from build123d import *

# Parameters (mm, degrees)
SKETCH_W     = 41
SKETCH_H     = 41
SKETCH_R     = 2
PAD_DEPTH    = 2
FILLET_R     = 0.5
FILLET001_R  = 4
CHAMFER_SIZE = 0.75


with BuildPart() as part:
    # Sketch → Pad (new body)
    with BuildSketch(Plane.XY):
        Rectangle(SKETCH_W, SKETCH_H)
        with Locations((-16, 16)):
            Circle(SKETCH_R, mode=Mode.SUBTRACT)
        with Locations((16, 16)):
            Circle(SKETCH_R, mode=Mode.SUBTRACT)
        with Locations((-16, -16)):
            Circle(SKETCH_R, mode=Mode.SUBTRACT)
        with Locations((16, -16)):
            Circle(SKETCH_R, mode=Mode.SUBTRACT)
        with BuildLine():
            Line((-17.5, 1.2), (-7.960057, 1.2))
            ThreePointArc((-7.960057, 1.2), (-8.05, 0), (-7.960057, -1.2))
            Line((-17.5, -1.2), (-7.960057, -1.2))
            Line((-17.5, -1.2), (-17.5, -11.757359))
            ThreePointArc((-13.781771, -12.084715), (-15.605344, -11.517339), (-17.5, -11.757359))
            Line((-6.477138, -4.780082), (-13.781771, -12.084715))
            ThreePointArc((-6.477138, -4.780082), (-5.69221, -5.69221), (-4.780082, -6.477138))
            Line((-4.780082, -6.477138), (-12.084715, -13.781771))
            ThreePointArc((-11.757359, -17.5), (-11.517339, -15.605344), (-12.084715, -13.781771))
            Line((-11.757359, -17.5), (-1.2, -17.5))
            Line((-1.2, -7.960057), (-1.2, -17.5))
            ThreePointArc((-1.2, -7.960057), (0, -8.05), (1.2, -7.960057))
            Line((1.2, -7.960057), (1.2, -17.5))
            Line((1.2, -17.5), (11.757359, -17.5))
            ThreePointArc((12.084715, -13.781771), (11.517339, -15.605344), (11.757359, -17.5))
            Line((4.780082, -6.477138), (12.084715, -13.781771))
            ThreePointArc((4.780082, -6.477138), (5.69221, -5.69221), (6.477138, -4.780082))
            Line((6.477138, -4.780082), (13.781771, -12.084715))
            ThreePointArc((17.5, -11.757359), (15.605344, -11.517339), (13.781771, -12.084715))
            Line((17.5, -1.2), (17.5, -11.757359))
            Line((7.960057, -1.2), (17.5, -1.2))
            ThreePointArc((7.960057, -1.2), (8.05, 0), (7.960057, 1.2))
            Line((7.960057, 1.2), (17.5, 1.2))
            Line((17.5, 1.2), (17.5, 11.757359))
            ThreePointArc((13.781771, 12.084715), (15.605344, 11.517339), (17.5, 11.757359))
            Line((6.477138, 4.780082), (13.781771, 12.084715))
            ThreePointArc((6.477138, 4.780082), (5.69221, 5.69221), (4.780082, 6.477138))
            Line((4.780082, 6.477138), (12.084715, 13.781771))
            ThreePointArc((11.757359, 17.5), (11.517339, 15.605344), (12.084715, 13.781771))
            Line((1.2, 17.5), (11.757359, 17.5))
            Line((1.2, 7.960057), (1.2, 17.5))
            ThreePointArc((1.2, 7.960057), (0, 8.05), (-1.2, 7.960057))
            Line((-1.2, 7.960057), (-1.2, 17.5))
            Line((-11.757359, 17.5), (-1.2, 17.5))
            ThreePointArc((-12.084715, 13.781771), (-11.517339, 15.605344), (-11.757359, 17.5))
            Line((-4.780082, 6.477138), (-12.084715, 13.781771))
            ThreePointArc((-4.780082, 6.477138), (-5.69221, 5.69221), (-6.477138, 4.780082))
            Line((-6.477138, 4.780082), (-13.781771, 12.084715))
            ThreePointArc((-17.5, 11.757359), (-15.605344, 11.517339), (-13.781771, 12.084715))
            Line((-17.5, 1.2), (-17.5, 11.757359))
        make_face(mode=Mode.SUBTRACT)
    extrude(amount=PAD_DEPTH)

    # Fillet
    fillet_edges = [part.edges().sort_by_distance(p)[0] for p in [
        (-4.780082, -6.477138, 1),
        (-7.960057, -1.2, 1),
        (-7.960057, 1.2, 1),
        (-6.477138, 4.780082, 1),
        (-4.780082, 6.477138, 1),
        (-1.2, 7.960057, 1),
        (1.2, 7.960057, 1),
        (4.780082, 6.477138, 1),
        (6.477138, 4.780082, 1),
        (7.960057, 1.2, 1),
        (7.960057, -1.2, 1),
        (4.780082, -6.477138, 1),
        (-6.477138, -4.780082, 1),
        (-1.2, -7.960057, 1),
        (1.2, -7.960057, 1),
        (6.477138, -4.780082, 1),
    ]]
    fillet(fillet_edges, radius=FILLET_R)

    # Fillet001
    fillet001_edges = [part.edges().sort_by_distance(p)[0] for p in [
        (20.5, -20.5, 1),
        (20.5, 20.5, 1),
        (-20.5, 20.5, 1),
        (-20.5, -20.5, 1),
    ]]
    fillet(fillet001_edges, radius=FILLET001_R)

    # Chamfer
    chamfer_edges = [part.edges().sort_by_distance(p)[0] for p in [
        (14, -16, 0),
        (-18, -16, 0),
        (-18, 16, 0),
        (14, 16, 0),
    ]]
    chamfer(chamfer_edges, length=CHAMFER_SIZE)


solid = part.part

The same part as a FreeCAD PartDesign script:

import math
import FreeCAD as App
import Part
import Sketcher

V = App.Vector
Q = App.Units.Quantity


def edges_at(feature, points):
    """Names of the edges that pass closest to the given points."""
    edges = feature.Shape.Edges
    near = lambda p: min(range(len(edges)), key=lambda i: edges[i].distToShape(Part.Vertex(*p))[0])
    return sorted({f"Edge{near(p) + 1}" for p in points})


def add_polygon(sketch, points):
    """Adds a closed chain of lines whose ends are joined by coincident constraints."""
    first, n = sketch.GeometryCount, len(points)
    for a, b in zip(points, points[1:] + points[:1]):
        sketch.addGeometry(Part.LineSegment(App.Vector(*a, 0), App.Vector(*b, 0)), False)
    for i in range(n):
        sketch.addConstraint(Sketcher.Constraint("Coincident", first + i, 2, first + (i + 1) % n, 1))

doc = App.newDocument("Part")
body = doc.addObject("PartDesign::Body", "Body")

# Sketch on XY plane
sketch1 = body.newObject("Sketcher::SketchObject", "Sketch")
sketch1.AttachmentSupport = (doc.getObject("XY_Plane"), [""])
sketch1.MapMode = "FlatFace"
add_polygon(sketch1, [(-20.5, 20.5), (-20.5, -20.5), (20.5, -20.5), (20.5, 20.5)])  # lines 0-3
sketch1.addGeometry(Part.Circle(V(-16, -16, 0), V(0, 0, 1), 2), False)  # 4
sketch1.addGeometry(Part.Circle(V(16, -16, 0), V(0, 0, 1), 2), False)  # 5
sketch1.addGeometry(Part.Circle(V(-16, 16, 0), V(0, 0, 1), 2), False)  # 6
sketch1.addGeometry(Part.LineSegment(V(-7.960057, 1.2, 0), V(-17.5, 1.2, 0)), False)  # 7
sketch1.addGeometry(Part.LineSegment(V(-17.5, 1.2, 0), V(-17.5, 11.757359, 0)), False)  # 8
sketch1.addGeometry(Part.ArcOfCircle(Part.Circle(V(-16, 15.999996, 0), V(0, 0, 1), 4.499996), math.radians(-109.471232), math.radians(-60.465977)), False)  # 9
sketch1.addGeometry(Part.LineSegment(V(-13.781771, 12.084715, 0), V(-6.477138, 4.780082, 0)), False)  # 10
sketch1.addGeometry(Part.ArcOfCircle(Part.Circle(V(-0.000034, 0.000034, 0), V(0, 0, 1), 8.049952), math.radians(126.427011), math.radians(143.572989)), False)  # 11
sketch1.addGeometry(Part.LineSegment(V(-4.780082, 6.477138, 0), V(-12.084715, 13.781771, 0)), False)  # 12
sketch1.addGeometry(Part.ArcOfCircle(Part.Circle(V(-15.999996, 16, 0), V(0, 0, 1), 4.499996), math.radians(-29.534023), math.radians(19.471232)), False)  # 13
sketch1.addGeometry(Part.LineSegment(V(-11.757359, 17.5, 0), V(-1.2, 17.5, 0)), False)  # 14
sketch1.addGeometry(Part.LineSegment(V(-1.2, 17.5, 0), V(-1.2, 7.960057, 0)), False)  # 15
sketch1.addGeometry(Part.ArcOfCircle(Part.Circle(V(0, -0.000041, 0), V(0, 0, 1), 8.050041), math.radians(81.427106), math.radians(98.572894)), False)  # 16
sketch1.addGeometry(Part.LineSegment(V(1.2, 7.960057, 0), V(1.2, 17.5, 0)), False)  # 17
sketch1.addGeometry(Part.LineSegment(V(1.2, 17.5, 0), V(11.757359, 17.5, 0)), False)  # 18
sketch1.addGeometry(Part.ArcOfCircle(Part.Circle(V(15.999996, 16, 0), V(0, 0, 1), 4.499996), math.radians(160.528768), math.radians(209.534023)), False)  # 19
sketch1.addGeometry(Part.LineSegment(V(12.084715, 13.781771, 0), V(4.780082, 6.477138, 0)), False)  # 20
sketch1.addGeometry(Part.ArcOfCircle(Part.Circle(V(0.000034, 0.000034, 0), V(0, 0, 1), 8.049952), math.radians(36.427011), math.radians(53.572989)), False)  # 21
sketch1.addGeometry(Part.LineSegment(V(6.477138, 4.780082, 0), V(13.781771, 12.084715, 0)), False)  # 22
sketch1.addGeometry(Part.ArcOfCircle(Part.Circle(V(16, 15.999996, 0), V(0, 0, 1), 4.499996), math.radians(-119.534023), math.radians(-70.528768)), False)  # 23
sketch1.addGeometry(Part.LineSegment(V(17.5, 11.757359, 0), V(17.5, 1.2, 0)), False)  # 24
sketch1.addGeometry(Part.LineSegment(V(17.5, 1.2, 0), V(7.960057, 1.2, 0)), False)  # 25
sketch1.addGeometry(Part.ArcOfCircle(Part.Circle(V(-0.000041, 0, 0), V(0, 0, 1), 8.050041), math.radians(-8.572894), math.radians(8.572894)), False)  # 26
sketch1.addGeometry(Part.LineSegment(V(7.960057, -1.2, 0), V(17.5, -1.2, 0)), False)  # 27
sketch1.addGeometry(Part.LineSegment(V(17.5, -1.2, 0), V(17.5, -11.757359, 0)), False)  # 28
sketch1.addGeometry(Part.ArcOfCircle(Part.Circle(V(16, -15.999996, 0), V(0, 0, 1), 4.499996), math.radians(70.528768), math.radians(119.534023)), False)  # 29
sketch1.addGeometry(Part.LineSegment(V(13.781771, -12.084715, 0), V(6.477138, -4.780082, 0)), False)  # 30
sketch1.addGeometry(Part.ArcOfCircle(Part.Circle(V(0.000034, -0.000034, 0), V(0, 0, 1), 8.049952), math.radians(-53.572989), math.radians(-36.427011)), False)  # 31
sketch1.addGeometry(Part.LineSegment(V(4.780082, -6.477138, 0), V(12.084715, -13.781771, 0)), False)  # 32
sketch1.addGeometry(Part.ArcOfCircle(Part.Circle(V(15.999996, -16, 0), V(0, 0, 1), 4.499996), math.radians(150.465977), math.radians(199.471232)), False)  # 33
sketch1.addGeometry(Part.LineSegment(V(11.757359, -17.5, 0), V(1.2, -17.5, 0)), False)  # 34
sketch1.addGeometry(Part.LineSegment(V(1.2, -17.5, 0), V(1.2, -7.960057, 0)), False)  # 35
sketch1.addGeometry(Part.ArcOfCircle(Part.Circle(V(0, 0.000041, 0), V(0, 0, 1), 8.050041), math.radians(-98.572894), math.radians(-81.427106)), False)  # 36
sketch1.addGeometry(Part.LineSegment(V(-1.2, -7.960057, 0), V(-1.2, -17.5, 0)), False)  # 37
sketch1.addGeometry(Part.LineSegment(V(-1.2, -17.5, 0), V(-11.757359, -17.5, 0)), False)  # 38
sketch1.addGeometry(Part.ArcOfCircle(Part.Circle(V(-15.999996, -16, 0), V(0, 0, 1), 4.499996), math.radians(-19.471232), math.radians(29.534023)), False)  # 39
sketch1.addGeometry(Part.LineSegment(V(-12.084715, -13.781771, 0), V(-4.780082, -6.477138, 0)), False)  # 40
sketch1.addGeometry(Part.ArcOfCircle(Part.Circle(V(-0.000034, -0.000034, 0), V(0, 0, 1), 8.049952), math.radians(-143.572989), math.radians(-126.427011)), False)  # 41
sketch1.addGeometry(Part.LineSegment(V(-6.477138, -4.780082, 0), V(-13.781771, -12.084715, 0)), False)  # 42
sketch1.addGeometry(Part.ArcOfCircle(Part.Circle(V(-16, -15.999996, 0), V(0, 0, 1), 4.499996), math.radians(60.465977), math.radians(109.471232)), False)  # 43
sketch1.addGeometry(Part.LineSegment(V(-17.5, -11.757359, 0), V(-17.5, -1.2, 0)), False)  # 44
sketch1.addGeometry(Part.LineSegment(V(-17.5, -1.2, 0), V(-7.960057, -1.2, 0)), False)  # 45
sketch1.addGeometry(Part.ArcOfCircle(Part.Circle(V(0.000041, 0, 0), V(0, 0, 1), 8.050041), math.radians(171.427106), math.radians(188.572894)), False)  # 46
sketch1.addGeometry(Part.Circle(V(16, 16, 0), V(0, 0, 1), 2), False)  # 47
sketch1.addConstraint([
    Sketcher.Constraint("Coincident", 7, 2, 8, 1),
    Sketcher.Constraint("Coincident", 8, 2, 9, 1),
    Sketcher.Constraint("Coincident", 9, 2, 10, 1),
    Sketcher.Constraint("Coincident", 10, 2, 11, 2),
    Sketcher.Constraint("Coincident", 11, 1, 12, 1),
    Sketcher.Constraint("Coincident", 12, 2, 13, 1),
    Sketcher.Constraint("Coincident", 13, 2, 14, 1),
    Sketcher.Constraint("Coincident", 14, 2, 15, 1),
    Sketcher.Constraint("Coincident", 15, 2, 16, 2),
    Sketcher.Constraint("Coincident", 16, 1, 17, 1),
    Sketcher.Constraint("Coincident", 17, 2, 18, 1),
    Sketcher.Constraint("Coincident", 18, 2, 19, 1),
    Sketcher.Constraint("Coincident", 19, 2, 20, 1),
    Sketcher.Constraint("Coincident", 20, 2, 21, 2),
    Sketcher.Constraint("Coincident", 21, 1, 22, 1),
    Sketcher.Constraint("Coincident", 22, 2, 23, 1),
    Sketcher.Constraint("Coincident", 23, 2, 24, 1),
    Sketcher.Constraint("Coincident", 24, 2, 25, 1),
    Sketcher.Constraint("Coincident", 25, 2, 26, 2),
    Sketcher.Constraint("Coincident", 26, 1, 27, 1),
    Sketcher.Constraint("Coincident", 27, 2, 28, 1),
    Sketcher.Constraint("Coincident", 28, 2, 29, 1),
    Sketcher.Constraint("Coincident", 29, 2, 30, 1),
    Sketcher.Constraint("Coincident", 30, 2, 31, 2),
    Sketcher.Constraint("Coincident", 31, 1, 32, 1),
    Sketcher.Constraint("Coincident", 32, 2, 33, 1),
    Sketcher.Constraint("Coincident", 33, 2, 34, 1),
    Sketcher.Constraint("Coincident", 34, 2, 35, 1),
    Sketcher.Constraint("Coincident", 35, 2, 36, 2),
    Sketcher.Constraint("Coincident", 36, 1, 37, 1),
    Sketcher.Constraint("Coincident", 37, 2, 38, 1),
    Sketcher.Constraint("Coincident", 38, 2, 39, 1),
    Sketcher.Constraint("Coincident", 39, 2, 40, 1),
    Sketcher.Constraint("Coincident", 40, 2, 41, 2),
    Sketcher.Constraint("Coincident", 41, 1, 42, 1),
    Sketcher.Constraint("Coincident", 42, 2, 43, 1),
    Sketcher.Constraint("Coincident", 43, 2, 44, 1),
    Sketcher.Constraint("Coincident", 44, 2, 45, 1),
    Sketcher.Constraint("Coincident", 45, 2, 46, 2),
    Sketcher.Constraint("Coincident", 46, 1, 7, 1),
    Sketcher.Constraint("Vertical", 0),
    Sketcher.Constraint("Horizontal", 1),
    Sketcher.Constraint("Vertical", 2),
    Sketcher.Constraint("Horizontal", 3),
    Sketcher.Constraint("Horizontal", 7),
    Sketcher.Constraint("Vertical", 8),
    Sketcher.Constraint("Horizontal", 14),
    Sketcher.Constraint("Vertical", 15),
    Sketcher.Constraint("Vertical", 17),
    Sketcher.Constraint("Horizontal", 18),
    Sketcher.Constraint("Vertical", 24),
    Sketcher.Constraint("Horizontal", 25),
    Sketcher.Constraint("Horizontal", 27),
    Sketcher.Constraint("Vertical", 28),
    Sketcher.Constraint("Horizontal", 34),
    Sketcher.Constraint("Vertical", 35),
    Sketcher.Constraint("Vertical", 37),
    Sketcher.Constraint("Horizontal", 38),
    Sketcher.Constraint("Vertical", 44),
    Sketcher.Constraint("Horizontal", 45),
    Sketcher.Constraint("Coincident", 9, 3, 6, 3),
    Sketcher.Constraint("Coincident", 13, 3, 6, 3),
    Sketcher.Constraint("Coincident", 23, 3, 19, 3),
    Sketcher.Constraint("Coincident", 29, 3, 5, 3),
    Sketcher.Constraint("Coincident", 33, 3, 5, 3),
    Sketcher.Constraint("Coincident", 39, 3, 4, 3),
    Sketcher.Constraint("Coincident", 43, 3, 4, 3),
    Sketcher.Constraint("Coincident", 47, 3, 19, 3),
    Sketcher.Constraint("Equal", 4, 5),
    Sketcher.Constraint("Equal", 5, 6),
    Sketcher.Constraint("Equal", 9, 13),
    Sketcher.Constraint("Equal", 13, 19),
    Sketcher.Constraint("Equal", 11, 21),
    Sketcher.Constraint("Equal", 19, 23),
    Sketcher.Constraint("Equal", 16, 26),
    Sketcher.Constraint("Equal", 23, 29),
    Sketcher.Constraint("Equal", 21, 31),
    Sketcher.Constraint("Equal", 29, 33),
    Sketcher.Constraint("Equal", 26, 36),
    Sketcher.Constraint("Equal", 33, 39),
    Sketcher.Constraint("Equal", 31, 41),
    Sketcher.Constraint("Equal", 39, 43),
    Sketcher.Constraint("Equal", 36, 46),
    Sketcher.Constraint("Equal", 6, 47),
    Sketcher.Constraint("Symmetric", 5, 3, 6, 3, -1, 1),
    Sketcher.Constraint("Symmetric", 4, 3, 19, 3, -1, 1),
    Sketcher.Constraint("Symmetric", 11, 3, 31, 3, -1, 1),
    Sketcher.Constraint("Symmetric", 16, 3, 36, 3, -1, 1),
    Sketcher.Constraint("Symmetric", 21, 3, 41, 3, -1, 1),
    Sketcher.Constraint("Symmetric", 26, 3, 46, 3, -1, 1),
    Sketcher.Constraint("Symmetric", 0, 2, 2, 2, -1, 1),
    Sketcher.Constraint("Symmetric", 7, 2, 27, 2, -1, 1),
    Sketcher.Constraint("Symmetric", 14, 2, 34, 2, -1, 1),
    Sketcher.Constraint("Symmetric", 17, 2, 37, 2, -1, 1),
    Sketcher.Constraint("Symmetric", 24, 2, 44, 2, -1, 1),
    Sketcher.Constraint("Symmetric", 4, 3, 5, 3, -2),
    Sketcher.Constraint("Symmetric", 11, 3, 21, 3, -2),
    Sketcher.Constraint("Symmetric", 15, 2, 16, 1, -2),
    Sketcher.Constraint("Symmetric", 7, 2, 24, 2, -2),
    Sketcher.Constraint("PointOnObject", 26, 3, -1),
    Sketcher.Constraint("Parallel", 10, 12),
    Sketcher.Constraint("Perpendicular", 12, 20),
    Sketcher.Constraint("Parallel", 20, 22),
    Sketcher.Constraint("Perpendicular", 22, 30),
    Sketcher.Constraint("Parallel", 30, 32),
    Sketcher.Constraint("Perpendicular", 32, 40),
    Sketcher.Constraint("Parallel", 40, 42),
    Sketcher.Constraint("Horizontal", 14, 2, 17, 2),
    Sketcher.Constraint("Horizontal", 12, 2, 19, 2),
    Sketcher.Constraint("Horizontal", 11, 1, 20, 2),
    Sketcher.Constraint("Horizontal", 10, 2, 21, 1),
    Sketcher.Constraint("Horizontal", 32, 2, 39, 2),
    Sketcher.Constraint("Horizontal", 30, 2, 41, 1),
    Sketcher.Constraint("Vertical", 22, 2, 29, 2),
    Sketcher.Constraint("Vertical", 20, 2, 31, 1),
    Sketcher.Constraint("Equal", 3, 0),
    Sketcher.Constraint("Equal", 38, 8),
    Sketcher.Constraint("Equal", 45, 15),
    Sketcher.Constraint("Equal", 10, 12),
    Sketcher.Constraint("Diameter", 4, Q("4 mm")),
    Sketcher.Constraint("DistanceX", 1, 1, 1, 2, Q("41 mm")),
    Sketcher.Constraint("DistanceX", 4, 3, -1, 1, Q("16 mm")),
    Sketcher.Constraint("DistanceY", 4, 3, -1, 1, Q("16 mm")),
    Sketcher.Constraint("DistanceX", 7, 2, -1, 1, Q("17.5 mm")),
    Sketcher.Constraint("DistanceY", -1, 1, 7, 2, Q("1.2 mm")),
    Sketcher.Constraint("DistanceY", -1, 1, 13, 2, Q("17.5 mm")),
    Sketcher.Constraint("Radius", 11, Q("8.049952 mm")),
    Sketcher.Constraint("Radius", 16, Q("8.050041 mm")),
    Sketcher.Constraint("Radius", 9, Q("4.499996 mm")),
    Sketcher.Constraint("Distance", 10, Q("10.330311 mm")),
    Sketcher.Constraint("DistanceX", 7, 2, 7, 1, Q("9.539943 mm")),
    Sketcher.Constraint("DistanceX", 9, 2, -1, 1, Q("13.781771 mm")),
    Sketcher.Constraint("DistanceY", -1, 1, 11, 1, Q("6.477138 mm")),
])
pad1 = body.newObject("PartDesign::Pad", "Pad")
pad1.Profile = sketch1
pad1.Length = 2
doc.recompute()

fillet = body.newObject("PartDesign::Fillet", "Fillet")
fillet.Base = (pad1, edges_at(pad1, [
    (-4.78, -6.477, 1),
    (-7.96, -1.2, 1),
    (-7.96, 1.2, 1),
    (-6.477, 4.78, 1),
    (-4.78, 6.477, 1),
    (-1.2, 7.96, 1),
    (1.2, 7.96, 1),
    (4.78, 6.477, 1),
    (6.477, 4.78, 1),
    (7.96, 1.2, 1),
    (7.96, -1.2, 1),
    (4.78, -6.477, 1),
    (-6.477, -4.78, 1),
    (-1.2, -7.96, 1),
    (1.2, -7.96, 1),
    (6.477, -4.78, 1),
]))
fillet.Radius = 0.5
doc.recompute()

fillet2 = body.newObject("PartDesign::Fillet", "Fillet001")
fillet2.Base = (fillet, edges_at(fillet, [
    (20.5, -20.5, 1),
    (20.5, 20.5, 1),
    (-20.5, 20.5, 1),
    (-20.5, -20.5, 1),
]))
fillet2.Radius = 4
doc.recompute()

chamfer = body.newObject("PartDesign::Chamfer", "Chamfer")
chamfer.Base = (fillet2, edges_at(fillet2, [
    (14, -16, 0),
    (-18, -16, 0),
    (-18, 16, 0),
    (14, 16, 0),
]))
chamfer.Size = 0.75

doc.recompute()
